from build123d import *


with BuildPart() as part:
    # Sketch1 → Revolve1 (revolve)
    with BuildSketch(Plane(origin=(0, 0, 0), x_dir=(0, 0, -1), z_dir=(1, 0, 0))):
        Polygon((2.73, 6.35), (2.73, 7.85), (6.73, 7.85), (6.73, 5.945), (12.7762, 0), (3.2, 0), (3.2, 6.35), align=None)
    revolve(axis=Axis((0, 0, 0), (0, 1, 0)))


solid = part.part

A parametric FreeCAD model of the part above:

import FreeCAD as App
import Part
import Sketcher

V = App.Vector
Q = App.Units.Quantity


def add_polygon(sketch, points):
    """Adds a closed chain of lines whose ends are joined by coincident constraints."""
    first, n = sketch.GeometryCount, len(points)
    for a, b in zip(points, points[1:] + points[:1]):
        sketch.addGeometry(Part.LineSegment(App.Vector(*a, 0), App.Vector(*b, 0)), False)
    for i in range(n):
        sketch.addConstraint(Sketcher.Constraint("Coincident", first + i, 2, first + (i + 1) % n, 1))

doc = App.newDocument("Part")
body = doc.addObject("PartDesign::Body", "Body")

# Sketch on YZ plane
sketch1 = doc.addObject("Sketcher::SketchObject", "Sketch")
body.addObject(sketch1)
sketch1.AttachmentSupport = (doc.YZ_Plane, [""])
sketch1.MapMode = "FlatFace"
add_polygon(sketch1, [(7.85, -2.73), (6.35, -2.73), (6.35, -3.2), (0, -3.2), (0, -12.7762), (5.945, -6.73), (7.85, -6.73)])  # lines 0-6
sketch1.addConstraint([
    Sketcher.Constraint("Horizontal", 0),
    Sketcher.Constraint("Vertical", 1),
    Sketcher.Constraint("Horizontal", 2),
    Sketcher.Constraint("Vertical", 3),
    Sketcher.Constraint("Horizontal", 5),
    Sketcher.Constraint("Vertical", 6),
    Sketcher.Constraint("PointOnObject", 2, 2, -2),
    Sketcher.Constraint("DistanceY", 6, 1, 6, 2, Q("4 mm")),
    Sketcher.Constraint("DistanceX", 0, 2, 0, 1, Q("1.5 mm")),
    Sketcher.Constraint("DistanceX", 2, 2, 2, 1, Q("6.35 mm")),
    Sketcher.Constraint("DistanceY", 1, 2, 1, 1, Q("0.47 mm")),
    Sketcher.Constraint("DistanceY", 1, 2, -1, 1, Q("3.2 mm")),
    Sketcher.Constraint("DistanceX", 5, 1, 5, 2, Q("1.905 mm")),
    Sketcher.Constraint("DistanceY", 3, 2, 3, 1, Q("9.5762 mm")),
])
revolution = doc.addObject("PartDesign::Revolution", "Revolution")
body.addObject(revolution)
revolution.Profile = sketch1
revolution.ReferenceAxis = (sketch1, ["H_Axis"])
revolution.Angle = 360

doc.recompute()
